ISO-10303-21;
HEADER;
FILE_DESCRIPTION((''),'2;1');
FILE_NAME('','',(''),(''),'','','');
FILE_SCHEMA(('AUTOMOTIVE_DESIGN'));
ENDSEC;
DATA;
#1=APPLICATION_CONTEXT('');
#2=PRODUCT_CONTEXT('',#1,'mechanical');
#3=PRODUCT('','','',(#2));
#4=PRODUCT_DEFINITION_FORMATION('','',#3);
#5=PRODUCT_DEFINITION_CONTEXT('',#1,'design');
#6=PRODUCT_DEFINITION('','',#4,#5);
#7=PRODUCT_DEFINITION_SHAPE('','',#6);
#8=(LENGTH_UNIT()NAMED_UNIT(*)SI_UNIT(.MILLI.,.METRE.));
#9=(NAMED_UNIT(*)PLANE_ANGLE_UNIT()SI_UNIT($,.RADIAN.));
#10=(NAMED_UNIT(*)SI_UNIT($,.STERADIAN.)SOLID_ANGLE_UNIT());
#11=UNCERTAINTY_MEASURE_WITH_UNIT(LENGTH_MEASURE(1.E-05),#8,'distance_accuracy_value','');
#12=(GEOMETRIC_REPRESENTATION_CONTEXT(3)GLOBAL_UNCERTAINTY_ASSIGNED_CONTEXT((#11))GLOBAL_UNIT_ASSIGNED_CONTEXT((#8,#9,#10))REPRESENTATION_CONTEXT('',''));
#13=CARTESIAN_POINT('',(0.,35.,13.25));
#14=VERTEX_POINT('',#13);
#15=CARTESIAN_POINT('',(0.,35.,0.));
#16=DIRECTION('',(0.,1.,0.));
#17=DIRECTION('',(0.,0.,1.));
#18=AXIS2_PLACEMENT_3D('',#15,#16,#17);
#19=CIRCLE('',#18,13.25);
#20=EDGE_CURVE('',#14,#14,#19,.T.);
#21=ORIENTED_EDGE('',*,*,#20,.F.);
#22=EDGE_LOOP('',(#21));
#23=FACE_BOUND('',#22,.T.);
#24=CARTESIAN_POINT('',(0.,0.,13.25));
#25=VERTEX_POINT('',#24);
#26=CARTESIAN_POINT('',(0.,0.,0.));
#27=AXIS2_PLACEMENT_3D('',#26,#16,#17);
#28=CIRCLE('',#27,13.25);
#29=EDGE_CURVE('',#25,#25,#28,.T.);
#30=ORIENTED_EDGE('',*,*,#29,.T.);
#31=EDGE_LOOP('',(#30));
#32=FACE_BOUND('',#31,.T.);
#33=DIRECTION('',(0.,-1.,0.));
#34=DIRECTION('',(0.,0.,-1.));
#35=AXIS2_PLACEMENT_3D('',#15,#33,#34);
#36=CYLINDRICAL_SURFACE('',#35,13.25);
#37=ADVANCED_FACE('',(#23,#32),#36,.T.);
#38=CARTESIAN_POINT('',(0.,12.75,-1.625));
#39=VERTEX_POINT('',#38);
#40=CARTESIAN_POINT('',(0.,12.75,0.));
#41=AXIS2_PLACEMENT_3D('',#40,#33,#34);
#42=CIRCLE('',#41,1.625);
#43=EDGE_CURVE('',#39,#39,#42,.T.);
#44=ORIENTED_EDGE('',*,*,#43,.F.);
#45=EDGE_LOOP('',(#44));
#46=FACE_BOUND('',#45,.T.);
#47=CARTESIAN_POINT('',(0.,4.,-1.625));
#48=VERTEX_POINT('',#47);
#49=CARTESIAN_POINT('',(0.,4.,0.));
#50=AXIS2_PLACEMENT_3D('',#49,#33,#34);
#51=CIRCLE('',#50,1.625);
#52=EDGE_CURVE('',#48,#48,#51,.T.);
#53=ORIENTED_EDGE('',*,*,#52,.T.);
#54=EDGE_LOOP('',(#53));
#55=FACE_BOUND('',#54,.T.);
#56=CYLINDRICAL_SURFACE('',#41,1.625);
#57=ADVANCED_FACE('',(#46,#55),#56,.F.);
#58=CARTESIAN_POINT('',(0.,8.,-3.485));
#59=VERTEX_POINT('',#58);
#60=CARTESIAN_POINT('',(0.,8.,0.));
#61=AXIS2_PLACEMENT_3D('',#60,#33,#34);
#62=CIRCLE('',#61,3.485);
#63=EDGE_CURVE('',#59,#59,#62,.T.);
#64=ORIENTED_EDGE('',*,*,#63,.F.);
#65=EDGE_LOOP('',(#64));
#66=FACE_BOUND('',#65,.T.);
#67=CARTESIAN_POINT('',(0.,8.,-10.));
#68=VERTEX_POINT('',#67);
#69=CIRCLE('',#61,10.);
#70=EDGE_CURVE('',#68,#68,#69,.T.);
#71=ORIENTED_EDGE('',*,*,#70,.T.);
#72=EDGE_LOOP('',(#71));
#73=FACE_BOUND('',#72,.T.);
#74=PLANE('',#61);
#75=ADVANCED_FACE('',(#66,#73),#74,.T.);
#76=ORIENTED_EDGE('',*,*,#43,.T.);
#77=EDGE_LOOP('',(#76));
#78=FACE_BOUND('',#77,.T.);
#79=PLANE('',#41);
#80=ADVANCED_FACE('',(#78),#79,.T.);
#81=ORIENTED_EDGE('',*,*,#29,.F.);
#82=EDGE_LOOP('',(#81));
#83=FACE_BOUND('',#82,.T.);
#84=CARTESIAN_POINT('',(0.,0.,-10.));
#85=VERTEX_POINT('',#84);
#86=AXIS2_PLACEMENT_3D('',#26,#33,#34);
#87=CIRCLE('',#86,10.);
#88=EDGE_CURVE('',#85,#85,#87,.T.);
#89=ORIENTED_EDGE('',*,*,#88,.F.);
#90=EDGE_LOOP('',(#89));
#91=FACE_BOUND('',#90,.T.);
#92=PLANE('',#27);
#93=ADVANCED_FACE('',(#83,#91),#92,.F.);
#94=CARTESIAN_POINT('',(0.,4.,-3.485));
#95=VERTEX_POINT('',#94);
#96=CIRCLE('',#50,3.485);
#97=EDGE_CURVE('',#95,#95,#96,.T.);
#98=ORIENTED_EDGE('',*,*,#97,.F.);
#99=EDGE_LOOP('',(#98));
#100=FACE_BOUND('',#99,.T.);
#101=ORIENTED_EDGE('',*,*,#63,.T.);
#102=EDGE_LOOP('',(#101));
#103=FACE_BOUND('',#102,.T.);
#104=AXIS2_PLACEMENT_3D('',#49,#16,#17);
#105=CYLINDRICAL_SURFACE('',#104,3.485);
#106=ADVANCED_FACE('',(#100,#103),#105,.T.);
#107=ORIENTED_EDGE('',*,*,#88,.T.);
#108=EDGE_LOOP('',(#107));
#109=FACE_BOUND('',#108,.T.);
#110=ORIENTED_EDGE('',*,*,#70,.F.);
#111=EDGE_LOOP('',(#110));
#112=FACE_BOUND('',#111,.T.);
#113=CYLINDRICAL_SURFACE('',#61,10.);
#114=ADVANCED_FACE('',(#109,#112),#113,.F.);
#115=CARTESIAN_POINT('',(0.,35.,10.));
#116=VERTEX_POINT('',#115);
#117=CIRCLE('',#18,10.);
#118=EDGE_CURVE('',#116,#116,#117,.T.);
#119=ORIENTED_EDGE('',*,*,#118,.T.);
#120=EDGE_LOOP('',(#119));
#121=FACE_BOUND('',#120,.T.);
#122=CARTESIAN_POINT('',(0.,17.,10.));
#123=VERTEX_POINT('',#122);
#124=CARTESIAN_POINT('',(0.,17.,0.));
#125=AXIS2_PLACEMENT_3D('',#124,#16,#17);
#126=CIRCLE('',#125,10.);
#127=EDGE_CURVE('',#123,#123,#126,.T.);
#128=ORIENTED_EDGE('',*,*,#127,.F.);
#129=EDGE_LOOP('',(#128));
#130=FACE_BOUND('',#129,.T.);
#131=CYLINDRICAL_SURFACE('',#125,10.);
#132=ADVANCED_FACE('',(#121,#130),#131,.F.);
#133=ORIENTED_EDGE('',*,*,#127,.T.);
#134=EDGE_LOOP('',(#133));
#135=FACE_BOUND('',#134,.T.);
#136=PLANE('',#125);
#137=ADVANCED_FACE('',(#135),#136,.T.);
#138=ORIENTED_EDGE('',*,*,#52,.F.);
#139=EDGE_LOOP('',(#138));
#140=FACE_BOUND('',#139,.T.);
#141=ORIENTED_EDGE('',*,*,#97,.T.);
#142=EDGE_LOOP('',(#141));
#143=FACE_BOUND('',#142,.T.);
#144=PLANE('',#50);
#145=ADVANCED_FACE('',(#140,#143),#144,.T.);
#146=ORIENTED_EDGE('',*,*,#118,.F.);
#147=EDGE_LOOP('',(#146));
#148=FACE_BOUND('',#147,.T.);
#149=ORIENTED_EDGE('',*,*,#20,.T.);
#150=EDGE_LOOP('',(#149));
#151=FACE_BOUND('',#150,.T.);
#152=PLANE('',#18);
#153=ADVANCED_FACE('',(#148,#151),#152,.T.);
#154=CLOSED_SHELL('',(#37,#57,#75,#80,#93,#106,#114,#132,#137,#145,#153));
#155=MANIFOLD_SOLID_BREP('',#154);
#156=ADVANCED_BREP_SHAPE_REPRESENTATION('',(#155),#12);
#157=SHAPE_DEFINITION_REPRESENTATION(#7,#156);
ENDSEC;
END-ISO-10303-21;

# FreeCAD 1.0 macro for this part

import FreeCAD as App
import Part
import Sketcher

V = App.Vector

doc = App.newDocument("Part")
body = doc.addObject("PartDesign::Body", "Body")

# Sketch on XZ plane
sketch1 = doc.addObject("Sketcher::SketchObject", "Sketch")
body.addObject(sketch1)
sketch1.AttachmentSupport = (doc.XZ_Plane, [""])
sketch1.MapMode = "FlatFace"
sketch1.addGeometry(Part.Circle(V(0, 0, 0), V(0, 0, 1), 13), False)
sketch1.addConstraint(Sketcher.Constraint("Coincident", 0, 3, -1, 1))
sketch1.addConstraint(Sketcher.Constraint("Diameter", 0, 26.5))
pad1 = doc.addObject("PartDesign::Pad", "Pad")
body.addObject(pad1)
pad1.Profile = sketch1
pad1.Length = 35
pad1.Reversed = True

# Sketch on XZ plane
sketch2 = doc.addObject("Sketcher::SketchObject", "Sketch001")
body.addObject(sketch2)
sketch2.AttachmentSupport = (doc.XZ_Plane, [""])
sketch2.MapMode = "FlatFace"
sketch2.addGeometry(Part.Circle(V(0, 0, 0), V(0, 0, 1), 10), False)
sketch2.addConstraint(Sketcher.Constraint("Coincident", 0, 3, -1, 1))
sketch2.addConstraint(Sketcher.Constraint("Diameter", 0, 20.0))
pocket1 = doc.addObject("PartDesign::Pocket", "Pocket")
body.addObject(pocket1)
pocket1.Profile = sketch2
pocket1.Length = 8

# Sketch on XZ plane
sketch3 = doc.addObject("Sketcher::SketchObject", "Sketch002")
body.addObject(sketch3)
sketch3.AttachmentSupport = (doc.XZ_Plane, [""])
sketch3.MapMode = "FlatFace"
sketch3.AttachmentOffset = App.Placement(V(0, 0, -8), App.Rotation())
sketch3.addGeometry(Part.Circle(V(0, 0, 0), V(0, 0, 1), 3.5), False)
sketch3.addConstraint(Sketcher.Constraint("Coincident", 0, 3, -1, 1))
sketch3.addConstraint(Sketcher.Constraint("Diameter", 0, 6.97))
pad2 = doc.addObject("PartDesign::Pad", "Pad001")
body.addObject(pad2)
pad2.Profile = sketch3
pad2.Length = 4

# Sketch on XZ plane
sketch4 = doc.addObject("Sketcher::SketchObject", "Sketch003")
body.addObject(sketch4)
sketch4.AttachmentSupport = (doc.XZ_Plane, [""])
sketch4.MapMode = "FlatFace"
sketch4.AttachmentOffset = App.Placement(V(0, 0, -4), App.Rotation())
sketch4.addGeometry(Part.Circle(V(0, 0, 0), V(0, 0, 1), 1.6), False)
sketch4.addConstraint(Sketcher.Constraint("Coincident", 0, 3, -1, 1))
sketch4.addConstraint(Sketcher.Constraint("Diameter", 0, 3.25))
pocket2 = doc.addObject("PartDesign::Pocket", "Pocket001")
body.addObject(pocket2)
pocket2.Profile = sketch4
pocket2.Length = 8.75

# Sketch on XZ plane
sketch5 = doc.addObject("Sketcher::SketchObject", "Sketch004")
body.addObject(sketch5)
sketch5.AttachmentSupport = (doc.XZ_Plane, [""])
sketch5.MapMode = "FlatFace"
sketch5.AttachmentOffset = App.Placement(V(0, 0, -35), App.Rotation())
sketch5.addGeometry(Part.Circle(V(0, 0, 0), V(0, 0, 1), 10), False)
sketch5.addConstraint(Sketcher.Constraint("Coincident", 0, 3, -1, 1))
sketch5.addConstraint(Sketcher.Constraint("Diameter", 0, 20.0))
pocket3 = doc.addObject("PartDesign::Pocket", "Pocket002")
body.addObject(pocket3)
pocket3.Profile = sketch5
pocket3.Length = 18
pocket3.Reversed = True

doc.recompute()
